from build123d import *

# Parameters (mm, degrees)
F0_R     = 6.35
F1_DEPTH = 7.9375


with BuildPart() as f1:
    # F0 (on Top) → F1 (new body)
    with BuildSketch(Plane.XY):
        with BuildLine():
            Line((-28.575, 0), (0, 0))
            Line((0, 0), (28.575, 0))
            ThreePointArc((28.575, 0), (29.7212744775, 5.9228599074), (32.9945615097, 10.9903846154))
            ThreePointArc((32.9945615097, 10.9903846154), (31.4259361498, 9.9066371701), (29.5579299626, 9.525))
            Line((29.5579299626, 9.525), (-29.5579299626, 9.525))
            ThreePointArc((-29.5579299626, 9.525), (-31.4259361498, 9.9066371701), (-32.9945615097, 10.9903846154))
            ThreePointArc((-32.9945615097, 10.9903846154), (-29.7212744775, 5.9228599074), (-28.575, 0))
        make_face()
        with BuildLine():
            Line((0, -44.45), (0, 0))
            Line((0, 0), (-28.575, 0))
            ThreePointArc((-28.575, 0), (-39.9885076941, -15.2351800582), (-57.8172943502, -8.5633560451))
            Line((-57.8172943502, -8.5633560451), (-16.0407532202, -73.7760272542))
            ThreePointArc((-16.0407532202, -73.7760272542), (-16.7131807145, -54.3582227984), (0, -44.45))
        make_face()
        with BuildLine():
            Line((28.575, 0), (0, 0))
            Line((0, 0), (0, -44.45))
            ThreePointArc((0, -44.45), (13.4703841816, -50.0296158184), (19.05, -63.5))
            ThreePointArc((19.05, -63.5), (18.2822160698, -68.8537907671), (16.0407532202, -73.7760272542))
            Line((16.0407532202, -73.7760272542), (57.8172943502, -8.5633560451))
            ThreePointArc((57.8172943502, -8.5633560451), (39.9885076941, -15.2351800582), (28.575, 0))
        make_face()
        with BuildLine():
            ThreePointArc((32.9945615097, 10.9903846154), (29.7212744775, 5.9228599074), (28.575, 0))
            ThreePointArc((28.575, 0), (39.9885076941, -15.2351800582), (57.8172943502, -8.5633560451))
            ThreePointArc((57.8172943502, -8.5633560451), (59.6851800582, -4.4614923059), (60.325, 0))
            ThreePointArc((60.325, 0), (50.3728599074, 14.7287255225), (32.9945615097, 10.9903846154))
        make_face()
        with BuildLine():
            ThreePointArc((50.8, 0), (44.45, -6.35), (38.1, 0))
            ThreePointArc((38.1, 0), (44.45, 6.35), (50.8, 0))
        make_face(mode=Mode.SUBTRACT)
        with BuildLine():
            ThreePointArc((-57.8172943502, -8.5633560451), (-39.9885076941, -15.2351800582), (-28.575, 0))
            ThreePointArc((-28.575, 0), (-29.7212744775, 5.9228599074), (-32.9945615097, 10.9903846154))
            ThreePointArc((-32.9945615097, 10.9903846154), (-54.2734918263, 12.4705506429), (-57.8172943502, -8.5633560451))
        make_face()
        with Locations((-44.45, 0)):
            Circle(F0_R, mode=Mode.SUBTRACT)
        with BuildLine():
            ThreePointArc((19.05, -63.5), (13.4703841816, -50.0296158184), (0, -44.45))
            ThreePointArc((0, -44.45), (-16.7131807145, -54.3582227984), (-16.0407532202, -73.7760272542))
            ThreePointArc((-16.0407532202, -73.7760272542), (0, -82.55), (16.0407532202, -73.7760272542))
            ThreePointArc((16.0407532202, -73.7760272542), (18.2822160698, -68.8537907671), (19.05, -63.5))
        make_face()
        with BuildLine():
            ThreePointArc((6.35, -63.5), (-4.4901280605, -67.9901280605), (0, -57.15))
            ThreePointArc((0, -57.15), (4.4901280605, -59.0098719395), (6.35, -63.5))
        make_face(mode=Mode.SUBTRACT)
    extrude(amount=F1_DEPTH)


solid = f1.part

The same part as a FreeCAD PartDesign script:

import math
import FreeCAD as App
import Part
import Sketcher

V = App.Vector
Q = App.Units.Quantity

doc = App.newDocument("Part")
body = doc.addObject("PartDesign::Body", "Body")

sketch1 = body.newObject("Sketcher::SketchObject", "Sketch")
sketch1.AttachmentSupport = (doc.getObject("XY_Plane"), [""])
sketch1.MapMode = "FlatFace"
sketch1.addGeometry([
    Part.ArcOfCircle(Part.Circle(V(29.55793, 14.2875, 0), V(0, 0, 1), 4.7625), math.radians(-90), math.radians(-43.813061)),
    Part.LineSegment(V(29.55793, 9.525, 0), V(-29.55793, 9.525, 0)),
    Part.ArcOfCircle(Part.Circle(V(-29.55793, 14.2875, 0), V(0, 0, 1), 4.7625), math.radians(-136.186939), math.radians(-90)),
    Part.ArcOfCircle(Part.Circle(V(-44.45, 0, 0), V(0, 0, 1), 15.875), math.radians(43.813061), math.radians(212.644437)),
    Part.LineSegment(V(-57.817294, -8.563356, 0), V(-16.040753, -73.776027, 0)),
    Part.ArcOfCircle(Part.Circle(V(0, -63.5, 0), V(0, 0, 1), 19.05), math.radians(-147.355563), math.radians(-32.644437)),
    Part.LineSegment(V(16.040753, -73.776027, 0), V(57.817294, -8.563356, 0)),
    Part.ArcOfCircle(Part.Circle(V(44.45, 0, 0), V(0, 0, 1), 15.875), math.radians(-32.644437), math.radians(0)),
    Part.ArcOfCircle(Part.Circle(V(44.45, 0, 0), V(0, 0, 1), 15.875), math.radians(0), math.radians(136.186939)),
    Part.ArcOfCircle(Part.Circle(V(0, -63.5, 0), V(0, 0, 1), 6.35), math.radians(0), math.radians(90)),
    Part.ArcOfCircle(Part.Circle(V(0, -63.5, 0), V(0, 0, 1), 6.35), math.radians(90), math.radians(360)),
    Part.Circle(V(-44.45, 0, 0), V(0, 0, 1), 6.35),
    Part.Circle(V(44.45, 0, 0), V(0, 0, 1), 6.35),
], False)
sketch1.addConstraint([
    Sketcher.Constraint("Tangent", 0, 1, 1, 1),
    Sketcher.Constraint("Tangent", 1, 2, 2, 2),
    Sketcher.Constraint("Tangent", 2, 1, 3, 1),
    Sketcher.Constraint("Tangent", 3, 2, 4, 1),
    Sketcher.Constraint("Tangent", 4, 2, 5, 1),
    Sketcher.Constraint("Tangent", 5, 2, 6, 1),
    Sketcher.Constraint("Tangent", 6, 2, 7, 1),
    Sketcher.Constraint("Tangent", 7, 2, 8, 1),
    Sketcher.Constraint("Tangent", 8, 2, 0, 2),
    Sketcher.Constraint("Tangent", 9, 1, 10, 2),
    Sketcher.Constraint("Coincident", 10, 1, 9, 2),
    Sketcher.Constraint("Horizontal", 1),
    Sketcher.Constraint("Coincident", 9, 3, 5, 3),
    Sketcher.Constraint("Coincident", 11, 3, 3, 3),
    Sketcher.Constraint("Coincident", 12, 3, 7, 3),
    Sketcher.Constraint("Equal", 0, 2),
    Sketcher.Constraint("Equal", 3, 7),
    Sketcher.Constraint("Equal", 7, 8),
    Sketcher.Constraint("Equal", 10, 11),
    Sketcher.Constraint("Equal", 11, 12),
    Sketcher.Constraint("Symmetric", 3, 3, 7, 3, -1, 1),
    Sketcher.Constraint("Symmetric", 4, 2, 5, 2, -2),
    Sketcher.Constraint("PointOnObject", 7, 2, -1),
    Sketcher.Constraint("PointOnObject", 10, 1, -2),
    Sketcher.Constraint("Horizontal", 10, 3, 9, 1),
    Sketcher.Constraint("Diameter", 11, Q("0.5 in")),
    Sketcher.Constraint("Radius", 5, Q("0.75 in")),
    Sketcher.Constraint("Radius", 0, Q("0.1875 in")),
    Sketcher.Constraint("Radius", 3, Q("0.625 in")),
    Sketcher.Constraint("DistanceY", 5, 3, -1, 1, Q("2.5 in")),
    Sketcher.Constraint("DistanceX", 3, 3, 7, 3, Q("3.5 in")),
    Sketcher.Constraint("DistanceY", -1, 1, 0, 3, Q("0.5625 in")),
])
pad1 = body.newObject("PartDesign::Pad", "Pad")
pad1.Profile = sketch1
pad1.Length = Q("0.3125 in")

doc.recompute()
